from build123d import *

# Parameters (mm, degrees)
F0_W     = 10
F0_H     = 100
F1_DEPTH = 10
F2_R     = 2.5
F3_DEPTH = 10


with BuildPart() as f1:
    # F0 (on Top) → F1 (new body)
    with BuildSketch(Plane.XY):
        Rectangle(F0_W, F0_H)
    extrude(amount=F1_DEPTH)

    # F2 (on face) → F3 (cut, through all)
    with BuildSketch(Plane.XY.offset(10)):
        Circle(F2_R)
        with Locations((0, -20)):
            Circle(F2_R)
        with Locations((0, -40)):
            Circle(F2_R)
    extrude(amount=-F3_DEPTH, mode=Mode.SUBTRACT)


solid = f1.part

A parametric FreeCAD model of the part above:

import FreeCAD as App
import Part
import Sketcher
from FreeCAD import Vector


def add_polygon(sketch, points):
    """Adds a closed chain of lines whose ends are joined by coincident constraints."""
    first, n = sketch.GeometryCount, len(points)
    for a, b in zip(points, points[1:] + points[:1]):
        sketch.addGeometry(Part.LineSegment(App.Vector(*a, 0), App.Vector(*b, 0)), False)
    for i in range(n):
        sketch.addConstraint(Sketcher.Constraint("Coincident", first + i, 2, first + (i + 1) % n, 1))

doc = App.newDocument("Part")
body = doc.addObject("PartDesign::Body", "Body")

sketch1 = body.newObject("Sketcher::SketchObject", "Sketch")
sketch1.AttachmentSupport = (doc.getObject("XY_Plane"), [""])
sketch1.MapMode = "FlatFace"
add_polygon(sketch1, [(-5, 50), (-5, -50), (5, -50), (5, 50)])
sketch1.addConstraint(Sketcher.Constraint("Vertical", 0))
sketch1.addConstraint(Sketcher.Constraint("Horizontal", 1))
sketch1.addConstraint(Sketcher.Constraint("Vertical", 2))
sketch1.addConstraint(Sketcher.Constraint("Horizontal", 3))
sketch1.addConstraint(Sketcher.Constraint("Symmetric", 0, 2, 2, 2, -1, 1))
sketch1.addConstraint(Sketcher.Constraint("DistanceX", 1, 1, 1, 2, 10.0))
sketch1.addConstraint(Sketcher.Constraint("DistanceY", 0, 2, 0, 1, 100.0))
pad1 = body.newObject("PartDesign::Pad", "Pad")
pad1.Profile = sketch1
pad1.Length = 10

sketch2 = body.newObject("Sketcher::SketchObject", "Sketch001")
sketch2.AttachmentSupport = (doc.getObject("XY_Plane"), [""])
sketch2.MapMode = "FlatFace"
sketch2.AttachmentOffset = App.Placement(Vector(0, 0, 10), App.Rotation())
sketch2.addGeometry(Part.Circle(Vector(0, 0, 0), Vector(0, 0, 1), 2.5), False)
sketch2.addGeometry(Part.Circle(Vector(0, -20, 0), Vector(0, 0, 1), 2.5), False)
sketch2.addGeometry(Part.Circle(Vector(0, -40, 0), Vector(0, 0, 1), 2.5), False)
sketch2.addConstraint(Sketcher.Constraint("Coincident", 0, 3, -1, 1))
sketch2.addConstraint(Sketcher.Constraint("Equal", 0, 1))
sketch2.addConstraint(Sketcher.Constraint("Equal", 1, 2))
sketch2.addConstraint(Sketcher.Constraint("PointOnObject", 1, 3, -2))
sketch2.addConstraint(Sketcher.Constraint("PointOnObject", 2, 3, -2))
sketch2.addConstraint(Sketcher.Constraint("Diameter", 0, 5.0))
sketch2.addConstraint(Sketcher.Constraint("DistanceY", 1, 3, -1, 1, 20.0))
sketch2.addConstraint(Sketcher.Constraint("DistanceY", 2, 3, -1, 1, 40.0))
pocket1 = body.newObject("PartDesign::Pocket", "Pocket")
pocket1.Profile = sketch2
pocket1.Type = "ThroughAll"

doc.recompute()
